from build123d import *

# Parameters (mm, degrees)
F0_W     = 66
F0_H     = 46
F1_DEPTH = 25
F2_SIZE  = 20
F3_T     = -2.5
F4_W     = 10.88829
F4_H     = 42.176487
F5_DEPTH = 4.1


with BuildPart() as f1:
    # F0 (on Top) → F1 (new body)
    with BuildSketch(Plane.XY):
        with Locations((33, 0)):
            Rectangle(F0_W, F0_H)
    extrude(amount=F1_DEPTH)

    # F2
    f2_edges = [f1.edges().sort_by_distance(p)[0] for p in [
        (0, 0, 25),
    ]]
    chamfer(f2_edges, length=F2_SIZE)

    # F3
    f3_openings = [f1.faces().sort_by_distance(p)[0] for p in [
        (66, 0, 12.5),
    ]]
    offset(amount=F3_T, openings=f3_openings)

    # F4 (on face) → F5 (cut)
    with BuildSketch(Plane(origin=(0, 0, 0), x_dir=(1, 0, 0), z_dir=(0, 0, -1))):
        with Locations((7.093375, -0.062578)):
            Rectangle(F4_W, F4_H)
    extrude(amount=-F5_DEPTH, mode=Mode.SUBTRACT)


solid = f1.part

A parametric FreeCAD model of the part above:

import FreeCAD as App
import Part
import Sketcher

V = App.Vector


def edges_at(feature, points):
    """Names of the edges that pass closest to the given points."""
    edges = feature.Shape.Edges
    near = lambda p: min(range(len(edges)), key=lambda i: edges[i].distToShape(Part.Vertex(*p))[0])
    return sorted({f"Edge{near(p) + 1}" for p in points})


def faces_at(feature, points):
    """Names of the faces that lie closest to the given points."""
    faces = feature.Shape.Faces
    near = lambda p: min(range(len(faces)), key=lambda i: faces[i].distToShape(Part.Vertex(*p))[0])
    return sorted({f"Face{near(p) + 1}" for p in points})

doc = App.newDocument("Part")
body = doc.addObject("PartDesign::Body", "Body")

# Sketch on XY plane
sketch1 = body.newObject("Sketcher::SketchObject", "Sketch")
sketch1.AttachmentSupport = (doc.getObject("XY_Plane"), [""])
sketch1.MapMode = "FlatFace"
sketch1.addGeometry([
    Part.LineSegment(V(0, 23, 0), V(0, -23, 0)),
    Part.LineSegment(V(0, -23, 0), V(66, -23, 0)),
    Part.LineSegment(V(66, -23, 0), V(66, 23, 0)),
    Part.LineSegment(V(66, 23, 0), V(0, 23, 0)),
], False)
sketch1.addConstraint([
    Sketcher.Constraint("Coincident", 0, 2, 1, 1),
    Sketcher.Constraint("Coincident", 1, 2, 2, 1),
    Sketcher.Constraint("Coincident", 2, 2, 3, 1),
    Sketcher.Constraint("Coincident", 3, 2, 0, 1),
    Sketcher.Constraint("Vertical", 0),
    Sketcher.Constraint("Horizontal", 1),
    Sketcher.Constraint("Vertical", 2),
    Sketcher.Constraint("Horizontal", 3),
    Sketcher.Constraint("Symmetric", 0, 2, 3, 2, -1, 1),
    Sketcher.Constraint("DistanceX", 1, 1, 1, 2, 66.0),
    Sketcher.Constraint("DistanceY", 0, 2, 0, 1, 46.0),
])
pad1 = body.newObject("PartDesign::Pad", "Pad")
pad1.Profile = sketch1
pad1.Length = 25
doc.recompute()

chamfer = body.newObject("PartDesign::Chamfer", "Chamfer")
chamfer.Base = (pad1, edges_at(pad1, [(0, 0, 25)]))
chamfer.Size = 20
doc.recompute()

thickness = body.newObject("PartDesign::Thickness", "Thickness")
thickness.Base = (chamfer, faces_at(chamfer, [(66, 0, 12.5)]))
thickness.Value = 2.5
thickness.Reversed = True
thickness.Join = "Arc"

# Sketch on XY plane
sketch2 = body.newObject("Sketcher::SketchObject", "Sketch001")
sketch2.AttachmentSupport = (doc.getObject("XY_Plane"), [""])
sketch2.MapMode = "FlatFace"
sketch2.addGeometry([
    Part.LineSegment(V(1.64923, -21.025665, 0), V(1.64923, 21.150821, 0)),
    Part.LineSegment(V(1.64923, 21.150821, 0), V(12.53752, 21.150821, 0)),
    Part.LineSegment(V(12.53752, 21.150821, 0), V(12.53752, -21.025665, 0)),
    Part.LineSegment(V(12.53752, -21.025665, 0), V(1.64923, -21.025665, 0)),
], False)
sketch2.addConstraint([
    Sketcher.Constraint("Coincident", 0, 2, 1, 1),
    Sketcher.Constraint("Coincident", 1, 2, 2, 1),
    Sketcher.Constraint("Coincident", 2, 2, 3, 1),
    Sketcher.Constraint("Coincident", 3, 2, 0, 1),
    Sketcher.Constraint("Vertical", 0),
    Sketcher.Constraint("Horizontal", 1),
    Sketcher.Constraint("Vertical", 2),
    Sketcher.Constraint("Horizontal", 3),
    Sketcher.Constraint("DistanceX", 1, 1, 1, 2, 10.88829),
    Sketcher.Constraint("DistanceY", 0, 1, 0, 2, 42.176487),
    Sketcher.Constraint("DistanceX", -1, 1, 0, 2, 1.64923),
    Sketcher.Constraint("DistanceY", -1, 1, 0, 2, 21.150821),
])
pocket1 = body.newObject("PartDesign::Pocket", "Pocket")
pocket1.Profile = sketch2
pocket1.Length = 4.1
pocket1.Reversed = True

doc.recompute()
